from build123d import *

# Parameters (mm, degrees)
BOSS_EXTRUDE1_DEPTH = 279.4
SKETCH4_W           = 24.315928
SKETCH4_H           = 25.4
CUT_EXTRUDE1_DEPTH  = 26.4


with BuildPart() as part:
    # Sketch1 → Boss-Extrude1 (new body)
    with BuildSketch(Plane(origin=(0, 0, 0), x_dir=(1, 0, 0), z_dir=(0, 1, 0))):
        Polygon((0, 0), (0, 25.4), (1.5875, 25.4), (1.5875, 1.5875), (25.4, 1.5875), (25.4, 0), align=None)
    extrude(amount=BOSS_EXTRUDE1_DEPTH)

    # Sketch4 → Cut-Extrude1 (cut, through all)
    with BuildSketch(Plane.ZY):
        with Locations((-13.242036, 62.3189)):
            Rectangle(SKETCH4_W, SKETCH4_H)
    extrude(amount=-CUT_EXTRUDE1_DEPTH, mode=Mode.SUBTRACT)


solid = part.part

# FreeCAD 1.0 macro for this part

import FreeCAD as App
import Part
import Sketcher

V = App.Vector
Q = App.Units.Quantity


def add_polygon(sketch, points):
    """Adds a closed chain of lines whose ends are joined by coincident constraints."""
    first, n = sketch.GeometryCount, len(points)
    for a, b in zip(points, points[1:] + points[:1]):
        sketch.addGeometry(Part.LineSegment(App.Vector(*a, 0), App.Vector(*b, 0)), False)
    for i in range(n):
        sketch.addConstraint(Sketcher.Constraint("Coincident", first + i, 2, first + (i + 1) % n, 1))

doc = App.newDocument("Part")
body = doc.addObject("PartDesign::Body", "Body")

sketch1 = body.newObject("Sketcher::SketchObject", "Sketch")
sketch1.AttachmentSupport = (doc.getObject("XZ_Plane"), [""])
sketch1.MapMode = "FlatFace"
add_polygon(sketch1, [(0, -25.4), (0, 0), (25.4, 0), (25.4, -1.5875), (1.5875, -1.5875), (1.5875, -25.4)])
sketch1.addConstraint([
    Sketcher.Constraint("Vertical", 0),
    Sketcher.Constraint("Horizontal", 1),
    Sketcher.Constraint("Vertical", 2),
    Sketcher.Constraint("Horizontal", 3),
    Sketcher.Constraint("Vertical", 4),
    Sketcher.Constraint("Horizontal", 5),
    Sketcher.Constraint("Coincident", 0, 2, -1, 1),
    Sketcher.Constraint("Equal", 1, 0),
    Sketcher.Constraint("Equal", 5, 2),
    Sketcher.Constraint("DistanceX", 1, 1, 1, 2, Q("1 in")),
    Sketcher.Constraint("DistanceX", 3, 2, 3, 1, Q("0.9375 in")),
])
pad1 = body.newObject("PartDesign::Pad", "Pad")
pad1.Profile = sketch1
pad1.Length = Q("11 in")
pad1.Reversed = True

sketch2 = body.newObject("Sketcher::SketchObject", "Sketch001")
sketch2.AttachmentSupport = (doc.getObject("YZ_Plane"), [""])
sketch2.MapMode = "FlatFace"
add_polygon(sketch2, [(75.0189, -25.4), (49.6189, -25.4), (49.6189, -1.084072), (75.0189, -1.084072)])
sketch2.addConstraint([
    Sketcher.Constraint("Horizontal", 0),
    Sketcher.Constraint("Vertical", 1),
    Sketcher.Constraint("Horizontal", 2),
    Sketcher.Constraint("Vertical", 3),
    Sketcher.Constraint("DistanceX", 0, 2, 0, 1, Q("1 in")),
    Sketcher.Constraint("DistanceY", 0, 2, -1, 1, Q("1 in")),
    Sketcher.Constraint("DistanceX", -1, 1, 0, 2, Q("1.9535 in")),
    Sketcher.Constraint("DistanceY", 1, 1, 1, 2, Q("24.315928 mm")),
])
pocket1 = body.newObject("PartDesign::Pocket", "Pocket")
pocket1.Profile = sketch2
pocket1.Type = "ThroughAll"
pocket1.Reversed = True

doc.recompute()
